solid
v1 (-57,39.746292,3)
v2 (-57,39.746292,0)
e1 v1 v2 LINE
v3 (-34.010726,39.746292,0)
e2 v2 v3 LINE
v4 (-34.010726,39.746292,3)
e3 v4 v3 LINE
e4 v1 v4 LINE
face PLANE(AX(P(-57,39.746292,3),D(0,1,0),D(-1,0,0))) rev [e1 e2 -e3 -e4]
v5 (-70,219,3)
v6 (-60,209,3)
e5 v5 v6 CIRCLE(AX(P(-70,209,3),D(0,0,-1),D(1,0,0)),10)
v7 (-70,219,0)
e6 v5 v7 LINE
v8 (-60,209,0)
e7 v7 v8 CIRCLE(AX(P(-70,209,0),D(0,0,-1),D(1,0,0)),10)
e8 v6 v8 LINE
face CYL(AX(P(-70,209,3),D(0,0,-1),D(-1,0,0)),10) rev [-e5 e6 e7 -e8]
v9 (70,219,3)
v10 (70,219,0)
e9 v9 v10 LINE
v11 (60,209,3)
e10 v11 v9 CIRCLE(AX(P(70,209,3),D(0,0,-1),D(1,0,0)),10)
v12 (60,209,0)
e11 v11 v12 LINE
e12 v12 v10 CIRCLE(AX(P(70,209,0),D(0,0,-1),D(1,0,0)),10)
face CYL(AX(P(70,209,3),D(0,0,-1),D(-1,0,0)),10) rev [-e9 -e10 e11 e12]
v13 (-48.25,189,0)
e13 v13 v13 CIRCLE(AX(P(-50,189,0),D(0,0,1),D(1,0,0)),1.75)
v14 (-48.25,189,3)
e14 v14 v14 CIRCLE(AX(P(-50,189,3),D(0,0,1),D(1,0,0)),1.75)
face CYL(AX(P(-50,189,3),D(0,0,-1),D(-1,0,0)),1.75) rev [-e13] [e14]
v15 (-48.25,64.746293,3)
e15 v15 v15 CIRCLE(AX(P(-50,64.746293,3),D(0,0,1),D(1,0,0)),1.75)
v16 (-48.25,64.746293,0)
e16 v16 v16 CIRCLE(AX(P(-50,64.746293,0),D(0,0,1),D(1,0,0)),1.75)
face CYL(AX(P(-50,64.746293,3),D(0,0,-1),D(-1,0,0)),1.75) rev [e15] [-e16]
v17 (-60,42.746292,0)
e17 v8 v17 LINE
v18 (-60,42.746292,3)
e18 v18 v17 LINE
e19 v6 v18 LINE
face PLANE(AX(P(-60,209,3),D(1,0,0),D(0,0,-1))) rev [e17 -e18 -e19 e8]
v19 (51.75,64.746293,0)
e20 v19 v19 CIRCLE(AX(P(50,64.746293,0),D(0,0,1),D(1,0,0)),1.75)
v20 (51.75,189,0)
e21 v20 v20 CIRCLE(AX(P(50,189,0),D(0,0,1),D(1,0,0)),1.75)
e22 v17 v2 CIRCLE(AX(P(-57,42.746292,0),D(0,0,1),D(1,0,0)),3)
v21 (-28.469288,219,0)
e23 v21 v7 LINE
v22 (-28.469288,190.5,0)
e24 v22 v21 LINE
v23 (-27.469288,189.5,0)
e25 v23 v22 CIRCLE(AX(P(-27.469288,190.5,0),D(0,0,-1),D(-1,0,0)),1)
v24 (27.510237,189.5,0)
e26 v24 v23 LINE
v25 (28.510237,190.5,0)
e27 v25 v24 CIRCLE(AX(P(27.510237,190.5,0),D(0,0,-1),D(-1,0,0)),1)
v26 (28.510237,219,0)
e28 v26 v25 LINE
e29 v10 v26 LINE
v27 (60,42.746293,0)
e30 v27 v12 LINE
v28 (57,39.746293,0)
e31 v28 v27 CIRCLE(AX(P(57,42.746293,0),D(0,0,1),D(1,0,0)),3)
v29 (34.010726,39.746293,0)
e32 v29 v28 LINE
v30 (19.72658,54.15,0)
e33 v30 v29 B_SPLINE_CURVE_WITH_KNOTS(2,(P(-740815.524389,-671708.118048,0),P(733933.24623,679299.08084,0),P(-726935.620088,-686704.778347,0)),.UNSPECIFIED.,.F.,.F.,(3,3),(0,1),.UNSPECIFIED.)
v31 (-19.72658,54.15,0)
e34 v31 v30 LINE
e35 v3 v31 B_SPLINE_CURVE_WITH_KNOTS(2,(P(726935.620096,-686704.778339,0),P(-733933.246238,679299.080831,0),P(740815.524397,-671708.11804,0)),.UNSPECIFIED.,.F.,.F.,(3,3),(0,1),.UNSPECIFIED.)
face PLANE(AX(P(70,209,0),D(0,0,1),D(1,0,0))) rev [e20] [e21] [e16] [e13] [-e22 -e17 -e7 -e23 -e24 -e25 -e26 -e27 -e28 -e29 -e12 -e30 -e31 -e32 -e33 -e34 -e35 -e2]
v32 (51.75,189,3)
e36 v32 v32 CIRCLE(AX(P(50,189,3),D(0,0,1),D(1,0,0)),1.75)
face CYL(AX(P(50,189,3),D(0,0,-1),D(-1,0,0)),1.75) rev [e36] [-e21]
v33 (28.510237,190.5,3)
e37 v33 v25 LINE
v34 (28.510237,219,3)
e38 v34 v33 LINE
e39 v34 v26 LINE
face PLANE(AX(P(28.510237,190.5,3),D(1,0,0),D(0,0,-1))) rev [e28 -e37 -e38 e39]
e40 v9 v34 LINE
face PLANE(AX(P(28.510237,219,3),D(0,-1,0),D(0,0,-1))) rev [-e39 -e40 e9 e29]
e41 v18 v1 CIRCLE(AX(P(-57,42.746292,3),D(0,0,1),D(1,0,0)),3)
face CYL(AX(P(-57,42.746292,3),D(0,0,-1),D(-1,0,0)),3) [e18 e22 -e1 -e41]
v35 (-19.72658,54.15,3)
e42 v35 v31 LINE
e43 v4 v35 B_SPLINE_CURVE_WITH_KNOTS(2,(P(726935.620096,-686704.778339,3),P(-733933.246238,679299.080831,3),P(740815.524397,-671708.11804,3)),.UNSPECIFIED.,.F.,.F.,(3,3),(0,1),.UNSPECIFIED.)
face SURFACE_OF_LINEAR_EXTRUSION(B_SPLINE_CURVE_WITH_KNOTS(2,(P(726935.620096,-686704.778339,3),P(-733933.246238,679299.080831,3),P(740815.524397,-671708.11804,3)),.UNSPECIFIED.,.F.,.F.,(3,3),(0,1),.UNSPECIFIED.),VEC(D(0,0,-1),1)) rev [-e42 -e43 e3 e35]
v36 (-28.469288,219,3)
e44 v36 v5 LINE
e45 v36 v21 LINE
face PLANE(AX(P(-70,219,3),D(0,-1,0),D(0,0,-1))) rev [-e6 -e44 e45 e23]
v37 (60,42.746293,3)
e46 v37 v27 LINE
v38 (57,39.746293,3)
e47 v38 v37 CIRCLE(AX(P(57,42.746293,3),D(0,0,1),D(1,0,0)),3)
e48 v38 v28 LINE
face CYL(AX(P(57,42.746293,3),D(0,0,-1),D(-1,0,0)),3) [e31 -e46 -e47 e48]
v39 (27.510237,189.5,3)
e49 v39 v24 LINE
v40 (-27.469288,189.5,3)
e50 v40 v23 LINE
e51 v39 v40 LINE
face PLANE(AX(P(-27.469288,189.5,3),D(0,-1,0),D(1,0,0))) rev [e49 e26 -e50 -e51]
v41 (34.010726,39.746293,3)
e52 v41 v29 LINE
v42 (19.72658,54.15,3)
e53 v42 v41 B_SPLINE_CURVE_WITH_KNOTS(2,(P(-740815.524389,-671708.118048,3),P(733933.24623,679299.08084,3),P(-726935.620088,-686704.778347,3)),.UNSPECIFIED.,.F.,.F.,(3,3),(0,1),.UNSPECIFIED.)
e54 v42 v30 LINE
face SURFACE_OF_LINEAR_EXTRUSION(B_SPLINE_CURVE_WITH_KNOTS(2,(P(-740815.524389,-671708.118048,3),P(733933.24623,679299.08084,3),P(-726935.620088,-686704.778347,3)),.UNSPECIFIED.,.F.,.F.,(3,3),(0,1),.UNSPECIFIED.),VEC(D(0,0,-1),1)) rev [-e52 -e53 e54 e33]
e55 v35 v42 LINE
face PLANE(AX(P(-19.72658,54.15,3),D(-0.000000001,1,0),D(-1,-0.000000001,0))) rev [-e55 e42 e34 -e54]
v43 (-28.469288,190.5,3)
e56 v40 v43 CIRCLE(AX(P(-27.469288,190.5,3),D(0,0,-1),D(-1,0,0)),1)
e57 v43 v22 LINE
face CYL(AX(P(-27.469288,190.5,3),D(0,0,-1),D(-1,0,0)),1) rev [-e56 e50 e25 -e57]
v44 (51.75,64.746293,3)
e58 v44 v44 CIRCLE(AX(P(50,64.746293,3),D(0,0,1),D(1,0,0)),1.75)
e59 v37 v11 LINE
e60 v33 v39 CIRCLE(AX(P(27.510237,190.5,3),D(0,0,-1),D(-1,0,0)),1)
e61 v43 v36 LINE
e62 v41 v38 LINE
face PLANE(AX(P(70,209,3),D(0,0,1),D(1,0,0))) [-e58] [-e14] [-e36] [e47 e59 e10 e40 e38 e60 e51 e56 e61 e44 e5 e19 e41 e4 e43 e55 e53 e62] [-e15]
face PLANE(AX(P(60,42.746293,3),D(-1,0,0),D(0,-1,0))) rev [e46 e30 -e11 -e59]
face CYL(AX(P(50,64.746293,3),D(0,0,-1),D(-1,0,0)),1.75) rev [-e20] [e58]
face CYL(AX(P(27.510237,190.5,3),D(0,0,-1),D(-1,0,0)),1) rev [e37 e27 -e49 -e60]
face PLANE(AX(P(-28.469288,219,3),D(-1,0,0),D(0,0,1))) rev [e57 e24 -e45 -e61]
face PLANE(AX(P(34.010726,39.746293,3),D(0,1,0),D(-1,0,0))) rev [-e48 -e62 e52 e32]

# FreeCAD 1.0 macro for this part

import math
import FreeCAD as App
import Part
import Sketcher

V = App.Vector
Q = App.Units.Quantity

doc = App.newDocument("Part")
body = doc.addObject("PartDesign::Body", "Body")

# Sketch on XY plane
sketch1 = body.newObject("Sketcher::SketchObject", "Sketch")
sketch1.AttachmentSupport = (doc.getObject("XY_Plane"), [""])
sketch1.MapMode = "FlatFace"
sketch1.addGeometry([
    Part.LineSegment(V(-28.469288, 219, 0), V(-70, 219, 0)),  # 0
    Part.ArcOfCircle(Part.Circle(V(-70, 209, 0), V(0, 0, 1), 10), math.radians(0), math.radians(90)),  # 1
    Part.LineSegment(V(-60, 209, 0), V(-60, 42.746292, 0)),  # 2
    Part.ArcOfCircle(Part.Circle(V(-57, 42.746292, 0), V(0, 0, 1), 3), math.radians(180), math.radians(270)),  # 3
    Part.LineSegment(V(-57, 39.746292, 0), V(-34.010726, 39.746292, 0)),  # 4
    Part.BSplineCurve([V(-34.010726, 39.746292, 0), V(-28.313482, 48.285383, 0), V(-19.72658, 54.15, 0)], [3, 3], [0, 1], False, 2, [1, 1, 1], False),  # 5
    Part.LineSegment(V(-19.72658, 54.15, 0), V(19.72658, 54.15, 0)),  # 6
    Part.BSplineCurve([V(19.72658, 54.15, 0), V(28.313482, 48.285383, 0), V(34.010726, 39.746293, 0)], [3, 3], [0, 1], False, 2, [1, 1, 1], False),  # 7
    Part.LineSegment(V(34.010726, 39.746293, 0), V(57, 39.746293, 0)),  # 8
    Part.ArcOfCircle(Part.Circle(V(57, 42.746293, 0), V(0, 0, 1), 3), math.radians(-90), math.radians(0)),  # 9
    Part.LineSegment(V(60, 42.746293, 0), V(60, 209, 0)),  # 10
    Part.ArcOfCircle(Part.Circle(V(70, 209, 0), V(0, 0, 1), 10), math.radians(90), math.radians(180)),  # 11
    Part.LineSegment(V(70, 219, 0), V(28.510237, 219, 0)),  # 12
    Part.LineSegment(V(28.510237, 219, 0), V(28.510237, 190.5, 0)),  # 13
    Part.ArcOfCircle(Part.Circle(V(27.510237, 190.5, 0), V(0, 0, 1), 1), math.radians(-90), math.radians(0)),  # 14
    Part.LineSegment(V(27.510237, 189.5, 0), V(-27.469288, 189.5, 0)),  # 15
    Part.ArcOfCircle(Part.Circle(V(-27.469288, 190.5, 0), V(0, 0, 1), 1), math.radians(180), math.radians(270)),  # 16
    Part.LineSegment(V(-28.469288, 190.5, 0), V(-28.469288, 219, 0)),  # 17
    Part.Circle(V(50, 64.746293, 0), V(0, 0, 1), 1.75),  # 18
    Part.Circle(V(-50, 64.746293, 0), V(0, 0, 1), 1.75),  # 19
    Part.Circle(V(50, 189, 0), V(0, 0, 1), 1.75),  # 20
    Part.Circle(V(-50, 189, 0), V(0, 0, 1), 1.75),  # 21
], False)
sketch1.addConstraint([
    Sketcher.Constraint("Block", 5),
    Sketcher.Constraint("Block", 7),
    Sketcher.Constraint("Tangent", 0, 2, 1, 2),
    Sketcher.Constraint("Tangent", 1, 1, 2, 1),
    Sketcher.Constraint("Tangent", 2, 2, 3, 1),
    Sketcher.Constraint("Tangent", 3, 2, 4, 1),
    Sketcher.Constraint("Coincident", 4, 2, 5, 1),
    Sketcher.Constraint("Coincident", 5, 2, 6, 1),
    Sketcher.Constraint("Coincident", 6, 2, 7, 1),
    Sketcher.Constraint("Coincident", 7, 2, 8, 1),
    Sketcher.Constraint("Tangent", 8, 2, 9, 1),
    Sketcher.Constraint("Tangent", 9, 2, 10, 1),
    Sketcher.Constraint("Tangent", 10, 2, 11, 2),
    Sketcher.Constraint("Tangent", 11, 1, 12, 1),
    Sketcher.Constraint("Coincident", 12, 2, 13, 1),
    Sketcher.Constraint("Tangent", 13, 2, 14, 2),
    Sketcher.Constraint("Tangent", 14, 1, 15, 1),
    Sketcher.Constraint("Tangent", 15, 2, 16, 2),
    Sketcher.Constraint("Tangent", 16, 1, 17, 1),
    Sketcher.Constraint("Coincident", 17, 2, 0, 1),
    Sketcher.Constraint("Horizontal", 0),
    Sketcher.Constraint("Vertical", 2),
    Sketcher.Constraint("Horizontal", 4),
    Sketcher.Constraint("Horizontal", 8),
    Sketcher.Constraint("Vertical", 10),
    Sketcher.Constraint("Horizontal", 12),
    Sketcher.Constraint("Vertical", 13),
    Sketcher.Constraint("Horizontal", 15),
    Sketcher.Constraint("Vertical", 17),
    Sketcher.Constraint("Equal", 3, 9),
    Sketcher.Constraint("Equal", 1, 11),
    Sketcher.Constraint("Equal", 14, 16),
    Sketcher.Constraint("Equal", 18, 19),
    Sketcher.Constraint("Equal", 19, 20),
    Sketcher.Constraint("Equal", 20, 21),
    Sketcher.Constraint("Symmetric", 1, 3, 11, 3, -2),
    Sketcher.Constraint("Symmetric", 18, 3, 19, 3, -2),
    Sketcher.Constraint("Symmetric", 20, 3, 21, 3, -2),
    Sketcher.Constraint("Vertical", 18, 3, 20, 3),
    Sketcher.Constraint("Radius", 1, Q("10 mm")),
    Sketcher.Constraint("Radius", 3, Q("3 mm")),
    Sketcher.Constraint("Radius", 14, Q("1 mm")),
    Sketcher.Constraint("Diameter", 18, Q("3.5 mm")),
    Sketcher.Constraint("DistanceY", 13, 2, 13, 1, Q("28.5 mm")),
    Sketcher.Constraint("DistanceX", 1, 3, -1, 1, Q("70 mm")),
    Sketcher.Constraint("DistanceY", -1, 1, 1, 3, Q("209 mm")),
    Sketcher.Constraint("DistanceX", -1, 1, 18, 3, Q("50 mm")),
    Sketcher.Constraint("DistanceY", -1, 1, 20, 3, Q("189 mm")),
    Sketcher.Constraint("DistanceY", 9, 3, 18, 3, Q("22 mm")),
    Sketcher.Constraint("DistanceX", 0, 2, 0, 1, Q("41.530712 mm")),
    Sketcher.Constraint("DistanceX", 12, 2, 12, 1, Q("41.489763 mm")),
])
pad1 = body.newObject("PartDesign::Pad", "Pad")
pad1.Profile = sketch1
pad1.Length = 3

doc.recompute()
